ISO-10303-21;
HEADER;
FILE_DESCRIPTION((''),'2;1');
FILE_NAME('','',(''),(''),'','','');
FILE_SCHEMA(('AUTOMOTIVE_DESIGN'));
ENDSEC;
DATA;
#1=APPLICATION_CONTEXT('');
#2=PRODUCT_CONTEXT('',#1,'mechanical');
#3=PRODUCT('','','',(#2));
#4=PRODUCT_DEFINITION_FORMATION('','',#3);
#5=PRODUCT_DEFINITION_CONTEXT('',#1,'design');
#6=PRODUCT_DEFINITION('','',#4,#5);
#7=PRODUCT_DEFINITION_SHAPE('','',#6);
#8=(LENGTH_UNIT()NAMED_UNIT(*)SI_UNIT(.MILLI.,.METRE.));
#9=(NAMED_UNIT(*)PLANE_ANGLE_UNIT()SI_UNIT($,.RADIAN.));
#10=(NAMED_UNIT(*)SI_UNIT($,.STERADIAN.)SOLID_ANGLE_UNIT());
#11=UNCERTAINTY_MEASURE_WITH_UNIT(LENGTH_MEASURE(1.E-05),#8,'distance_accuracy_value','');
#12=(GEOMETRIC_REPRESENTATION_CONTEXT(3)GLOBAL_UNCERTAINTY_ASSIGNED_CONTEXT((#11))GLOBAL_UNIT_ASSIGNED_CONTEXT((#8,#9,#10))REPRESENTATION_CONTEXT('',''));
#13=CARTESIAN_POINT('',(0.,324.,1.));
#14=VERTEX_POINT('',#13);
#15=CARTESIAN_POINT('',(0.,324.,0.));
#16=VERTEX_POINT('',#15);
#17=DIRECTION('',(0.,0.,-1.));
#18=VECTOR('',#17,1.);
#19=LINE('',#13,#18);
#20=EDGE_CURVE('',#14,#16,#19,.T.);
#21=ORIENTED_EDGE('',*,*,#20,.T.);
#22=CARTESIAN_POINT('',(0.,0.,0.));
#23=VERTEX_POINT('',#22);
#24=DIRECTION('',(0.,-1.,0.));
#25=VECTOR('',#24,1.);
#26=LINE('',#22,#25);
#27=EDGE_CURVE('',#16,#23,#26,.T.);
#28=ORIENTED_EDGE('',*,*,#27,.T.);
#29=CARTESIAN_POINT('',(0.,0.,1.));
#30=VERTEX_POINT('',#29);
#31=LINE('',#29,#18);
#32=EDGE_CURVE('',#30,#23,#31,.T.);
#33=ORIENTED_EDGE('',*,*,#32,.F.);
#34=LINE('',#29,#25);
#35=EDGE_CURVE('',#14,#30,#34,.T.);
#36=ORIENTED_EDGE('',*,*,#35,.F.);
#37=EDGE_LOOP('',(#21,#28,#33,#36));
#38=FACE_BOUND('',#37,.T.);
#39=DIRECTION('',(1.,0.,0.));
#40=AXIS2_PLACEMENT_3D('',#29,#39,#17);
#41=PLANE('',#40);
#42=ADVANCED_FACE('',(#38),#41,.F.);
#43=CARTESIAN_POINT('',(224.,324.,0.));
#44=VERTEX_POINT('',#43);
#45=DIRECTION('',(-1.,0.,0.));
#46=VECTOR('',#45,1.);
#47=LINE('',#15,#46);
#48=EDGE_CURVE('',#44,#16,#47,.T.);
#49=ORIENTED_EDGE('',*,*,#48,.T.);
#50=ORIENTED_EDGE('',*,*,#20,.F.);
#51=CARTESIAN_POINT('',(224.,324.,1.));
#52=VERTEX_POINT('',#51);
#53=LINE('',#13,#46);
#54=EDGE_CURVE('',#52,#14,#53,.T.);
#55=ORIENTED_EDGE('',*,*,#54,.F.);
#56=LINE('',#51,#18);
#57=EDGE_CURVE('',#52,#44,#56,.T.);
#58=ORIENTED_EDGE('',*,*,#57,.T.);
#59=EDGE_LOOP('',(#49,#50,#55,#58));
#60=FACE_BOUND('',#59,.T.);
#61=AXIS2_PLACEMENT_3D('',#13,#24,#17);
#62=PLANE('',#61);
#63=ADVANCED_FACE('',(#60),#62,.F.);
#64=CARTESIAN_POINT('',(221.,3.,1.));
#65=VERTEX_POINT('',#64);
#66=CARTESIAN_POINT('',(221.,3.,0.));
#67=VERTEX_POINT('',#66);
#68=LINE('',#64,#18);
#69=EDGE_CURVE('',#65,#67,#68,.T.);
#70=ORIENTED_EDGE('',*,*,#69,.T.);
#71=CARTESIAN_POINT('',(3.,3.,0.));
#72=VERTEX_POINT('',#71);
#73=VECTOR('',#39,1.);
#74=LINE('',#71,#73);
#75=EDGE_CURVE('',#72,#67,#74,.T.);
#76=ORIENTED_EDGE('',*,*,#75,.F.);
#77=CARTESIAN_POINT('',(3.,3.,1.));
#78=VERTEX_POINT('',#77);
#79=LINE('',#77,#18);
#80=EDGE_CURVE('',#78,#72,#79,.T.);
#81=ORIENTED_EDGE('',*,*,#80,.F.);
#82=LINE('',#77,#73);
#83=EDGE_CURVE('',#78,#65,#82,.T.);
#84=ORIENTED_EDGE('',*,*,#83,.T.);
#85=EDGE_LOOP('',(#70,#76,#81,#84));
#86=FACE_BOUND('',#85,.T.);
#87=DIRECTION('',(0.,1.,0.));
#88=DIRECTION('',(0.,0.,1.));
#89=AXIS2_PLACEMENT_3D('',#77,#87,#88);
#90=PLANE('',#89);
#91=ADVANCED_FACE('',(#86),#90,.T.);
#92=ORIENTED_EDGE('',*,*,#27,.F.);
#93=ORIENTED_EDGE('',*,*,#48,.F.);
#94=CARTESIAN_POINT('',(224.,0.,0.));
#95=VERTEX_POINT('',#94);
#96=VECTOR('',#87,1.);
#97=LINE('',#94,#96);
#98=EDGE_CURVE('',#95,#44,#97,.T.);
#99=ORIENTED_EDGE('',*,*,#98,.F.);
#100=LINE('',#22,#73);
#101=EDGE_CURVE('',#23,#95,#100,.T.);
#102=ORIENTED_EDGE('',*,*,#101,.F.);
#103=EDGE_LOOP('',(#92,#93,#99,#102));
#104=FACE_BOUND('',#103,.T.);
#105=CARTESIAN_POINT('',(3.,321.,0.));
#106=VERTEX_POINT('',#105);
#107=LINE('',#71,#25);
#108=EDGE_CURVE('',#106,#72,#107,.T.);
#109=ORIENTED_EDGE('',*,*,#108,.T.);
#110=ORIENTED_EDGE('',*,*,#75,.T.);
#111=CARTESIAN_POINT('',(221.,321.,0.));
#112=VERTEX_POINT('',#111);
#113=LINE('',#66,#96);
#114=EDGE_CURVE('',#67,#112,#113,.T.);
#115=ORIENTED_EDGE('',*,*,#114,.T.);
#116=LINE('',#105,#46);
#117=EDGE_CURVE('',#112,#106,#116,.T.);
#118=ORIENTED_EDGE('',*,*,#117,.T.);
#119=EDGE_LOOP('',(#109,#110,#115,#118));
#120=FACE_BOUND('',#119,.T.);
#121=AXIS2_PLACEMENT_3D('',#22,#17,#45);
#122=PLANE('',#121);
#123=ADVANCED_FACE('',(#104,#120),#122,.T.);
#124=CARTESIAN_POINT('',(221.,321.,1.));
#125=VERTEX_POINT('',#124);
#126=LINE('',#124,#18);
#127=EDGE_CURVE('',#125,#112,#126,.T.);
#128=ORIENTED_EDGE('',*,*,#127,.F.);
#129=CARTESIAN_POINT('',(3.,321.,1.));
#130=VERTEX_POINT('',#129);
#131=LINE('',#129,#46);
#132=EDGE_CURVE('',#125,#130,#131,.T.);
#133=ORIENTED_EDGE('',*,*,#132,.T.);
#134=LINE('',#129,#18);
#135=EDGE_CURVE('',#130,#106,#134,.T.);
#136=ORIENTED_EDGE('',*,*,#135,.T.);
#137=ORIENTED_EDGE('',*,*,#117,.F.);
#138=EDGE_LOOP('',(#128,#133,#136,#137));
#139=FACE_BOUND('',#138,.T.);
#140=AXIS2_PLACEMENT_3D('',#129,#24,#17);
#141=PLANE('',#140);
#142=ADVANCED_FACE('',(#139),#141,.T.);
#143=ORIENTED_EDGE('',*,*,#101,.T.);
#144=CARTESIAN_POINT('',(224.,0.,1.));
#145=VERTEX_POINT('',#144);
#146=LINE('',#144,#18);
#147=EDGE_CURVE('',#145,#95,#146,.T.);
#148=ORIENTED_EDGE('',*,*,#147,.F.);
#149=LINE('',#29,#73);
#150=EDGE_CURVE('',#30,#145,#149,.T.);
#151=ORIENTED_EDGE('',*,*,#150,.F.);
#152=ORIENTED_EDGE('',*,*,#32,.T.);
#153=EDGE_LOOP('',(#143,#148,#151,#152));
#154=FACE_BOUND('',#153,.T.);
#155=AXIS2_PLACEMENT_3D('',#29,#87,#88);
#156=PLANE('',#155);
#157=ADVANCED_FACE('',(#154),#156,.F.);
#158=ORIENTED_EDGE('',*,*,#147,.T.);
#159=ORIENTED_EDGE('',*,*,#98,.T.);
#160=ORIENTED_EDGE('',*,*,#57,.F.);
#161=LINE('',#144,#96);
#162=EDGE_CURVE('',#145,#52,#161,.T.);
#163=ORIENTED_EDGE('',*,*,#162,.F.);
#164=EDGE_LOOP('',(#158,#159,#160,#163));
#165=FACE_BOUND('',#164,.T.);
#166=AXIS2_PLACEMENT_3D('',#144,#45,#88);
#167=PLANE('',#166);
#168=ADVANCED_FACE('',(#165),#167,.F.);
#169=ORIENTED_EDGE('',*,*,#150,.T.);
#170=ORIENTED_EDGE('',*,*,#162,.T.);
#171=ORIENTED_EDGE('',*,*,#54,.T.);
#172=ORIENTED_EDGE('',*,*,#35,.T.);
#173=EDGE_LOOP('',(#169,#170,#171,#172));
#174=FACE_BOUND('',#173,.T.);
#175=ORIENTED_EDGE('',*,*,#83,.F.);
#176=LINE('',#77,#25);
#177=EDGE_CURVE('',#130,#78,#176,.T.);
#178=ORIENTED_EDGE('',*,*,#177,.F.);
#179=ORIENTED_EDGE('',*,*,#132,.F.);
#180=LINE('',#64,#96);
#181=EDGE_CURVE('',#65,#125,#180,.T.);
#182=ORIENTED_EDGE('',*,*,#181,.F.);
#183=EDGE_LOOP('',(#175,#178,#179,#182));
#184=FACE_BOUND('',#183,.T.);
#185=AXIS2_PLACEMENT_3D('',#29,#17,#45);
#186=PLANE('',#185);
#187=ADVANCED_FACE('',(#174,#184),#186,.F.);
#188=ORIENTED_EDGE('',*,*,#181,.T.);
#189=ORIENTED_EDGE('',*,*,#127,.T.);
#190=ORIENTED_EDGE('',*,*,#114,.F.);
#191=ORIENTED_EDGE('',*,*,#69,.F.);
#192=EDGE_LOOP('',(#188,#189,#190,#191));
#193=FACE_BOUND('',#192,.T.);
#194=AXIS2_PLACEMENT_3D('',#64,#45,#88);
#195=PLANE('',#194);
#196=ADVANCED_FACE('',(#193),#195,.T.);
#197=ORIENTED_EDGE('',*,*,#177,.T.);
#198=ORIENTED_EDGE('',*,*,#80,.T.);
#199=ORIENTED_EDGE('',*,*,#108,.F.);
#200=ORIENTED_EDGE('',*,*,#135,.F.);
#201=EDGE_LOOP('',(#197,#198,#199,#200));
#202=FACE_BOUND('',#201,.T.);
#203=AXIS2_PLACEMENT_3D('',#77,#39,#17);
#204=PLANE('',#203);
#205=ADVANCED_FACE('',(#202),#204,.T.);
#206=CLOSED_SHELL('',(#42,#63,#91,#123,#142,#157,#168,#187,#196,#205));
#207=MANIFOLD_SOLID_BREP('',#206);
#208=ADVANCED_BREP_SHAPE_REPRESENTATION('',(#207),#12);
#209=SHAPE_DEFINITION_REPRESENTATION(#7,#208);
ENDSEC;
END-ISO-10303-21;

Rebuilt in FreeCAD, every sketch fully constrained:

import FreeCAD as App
import Part
import Sketcher
from FreeCAD import Vector
Q = App.Units.Quantity

doc = App.newDocument("Part")
params = doc.addObject("Spreadsheet::Sheet", "Params")
for row, (alias, value) in enumerate([
    ("sketch1_width", "224 mm"),
    ("sketch1_width2", "218 mm"),
    ("sketch1_height", "324 mm"),
    ("sketch1_height2", "318 mm"),
    ("pad1_length", "1 mm"),
], start=1):
    params.set(f"A{row}", alias)
    params.set(f"B{row}", "=" + value)
    params.setAlias(f"B{row}", alias)

body = doc.addObject("PartDesign::Body", "Body")

sketch1 = body.newObject("Sketcher::SketchObject", "Sketch")
sketch1.AttachmentSupport = (doc.getObject("XY_Plane"), [""])
sketch1.MapMode = "FlatFace"
sketch1.addGeometry([
    Part.LineSegment(Vector(0, 324, 0), Vector(0, 0, 0)),
    Part.LineSegment(Vector(0, 0, 0), Vector(224, 0, 0)),
    Part.LineSegment(Vector(224, 0, 0), Vector(224, 324, 0)),
    Part.LineSegment(Vector(224, 324, 0), Vector(0, 324, 0)),
    Part.LineSegment(Vector(221, 3, 0), Vector(3, 3, 0)),
    Part.LineSegment(Vector(3, 3, 0), Vector(3, 321, 0)),
    Part.LineSegment(Vector(3, 321, 0), Vector(221, 321, 0)),
    Part.LineSegment(Vector(221, 321, 0), Vector(221, 3, 0)),
], False)
sketch1.addConstraint([
    Sketcher.Constraint("Coincident", 0, 2, 1, 1),
    Sketcher.Constraint("Coincident", 1, 2, 2, 1),
    Sketcher.Constraint("Coincident", 2, 2, 3, 1),
    Sketcher.Constraint("Coincident", 3, 2, 0, 1),
    Sketcher.Constraint("Coincident", 4, 2, 5, 1),
    Sketcher.Constraint("Coincident", 5, 2, 6, 1),
    Sketcher.Constraint("Coincident", 6, 2, 7, 1),
    Sketcher.Constraint("Coincident", 7, 2, 4, 1),
    Sketcher.Constraint("Vertical", 0),
    Sketcher.Constraint("Horizontal", 1),
    Sketcher.Constraint("Vertical", 2),
    Sketcher.Constraint("Horizontal", 3),
    Sketcher.Constraint("Horizontal", 4),
    Sketcher.Constraint("Vertical", 5),
    Sketcher.Constraint("Horizontal", 6),
    Sketcher.Constraint("Vertical", 7),
    Sketcher.Constraint("Coincident", 0, 2, -1, 1),
    Sketcher.Constraint("DistanceX", 1, 1, 1, 2, Q("224 mm")),
    Sketcher.Constraint("DistanceX", 4, 2, 4, 1, Q("218 mm")),
    Sketcher.Constraint("DistanceY", 0, 2, 0, 1, Q("324 mm")),
    Sketcher.Constraint("DistanceY", 5, 1, 5, 2, Q("318 mm")),
    Sketcher.Constraint("DistanceX", -1, 1, 4, 2, Q("3 mm")),
    Sketcher.Constraint("DistanceY", -1, 1, 4, 2, Q("3 mm")),
])
sketch1.setExpression("Constraints[17]", "Params.sketch1_width")
sketch1.setExpression("Constraints[18]", "Params.sketch1_width2")
sketch1.setExpression("Constraints[19]", "Params.sketch1_height")
sketch1.setExpression("Constraints[20]", "Params.sketch1_height2")
pad1 = body.newObject("PartDesign::Pad", "Pad")
pad1.Profile = sketch1
pad1.setExpression("Length", "Params.pad1_length")

doc.recompute()
